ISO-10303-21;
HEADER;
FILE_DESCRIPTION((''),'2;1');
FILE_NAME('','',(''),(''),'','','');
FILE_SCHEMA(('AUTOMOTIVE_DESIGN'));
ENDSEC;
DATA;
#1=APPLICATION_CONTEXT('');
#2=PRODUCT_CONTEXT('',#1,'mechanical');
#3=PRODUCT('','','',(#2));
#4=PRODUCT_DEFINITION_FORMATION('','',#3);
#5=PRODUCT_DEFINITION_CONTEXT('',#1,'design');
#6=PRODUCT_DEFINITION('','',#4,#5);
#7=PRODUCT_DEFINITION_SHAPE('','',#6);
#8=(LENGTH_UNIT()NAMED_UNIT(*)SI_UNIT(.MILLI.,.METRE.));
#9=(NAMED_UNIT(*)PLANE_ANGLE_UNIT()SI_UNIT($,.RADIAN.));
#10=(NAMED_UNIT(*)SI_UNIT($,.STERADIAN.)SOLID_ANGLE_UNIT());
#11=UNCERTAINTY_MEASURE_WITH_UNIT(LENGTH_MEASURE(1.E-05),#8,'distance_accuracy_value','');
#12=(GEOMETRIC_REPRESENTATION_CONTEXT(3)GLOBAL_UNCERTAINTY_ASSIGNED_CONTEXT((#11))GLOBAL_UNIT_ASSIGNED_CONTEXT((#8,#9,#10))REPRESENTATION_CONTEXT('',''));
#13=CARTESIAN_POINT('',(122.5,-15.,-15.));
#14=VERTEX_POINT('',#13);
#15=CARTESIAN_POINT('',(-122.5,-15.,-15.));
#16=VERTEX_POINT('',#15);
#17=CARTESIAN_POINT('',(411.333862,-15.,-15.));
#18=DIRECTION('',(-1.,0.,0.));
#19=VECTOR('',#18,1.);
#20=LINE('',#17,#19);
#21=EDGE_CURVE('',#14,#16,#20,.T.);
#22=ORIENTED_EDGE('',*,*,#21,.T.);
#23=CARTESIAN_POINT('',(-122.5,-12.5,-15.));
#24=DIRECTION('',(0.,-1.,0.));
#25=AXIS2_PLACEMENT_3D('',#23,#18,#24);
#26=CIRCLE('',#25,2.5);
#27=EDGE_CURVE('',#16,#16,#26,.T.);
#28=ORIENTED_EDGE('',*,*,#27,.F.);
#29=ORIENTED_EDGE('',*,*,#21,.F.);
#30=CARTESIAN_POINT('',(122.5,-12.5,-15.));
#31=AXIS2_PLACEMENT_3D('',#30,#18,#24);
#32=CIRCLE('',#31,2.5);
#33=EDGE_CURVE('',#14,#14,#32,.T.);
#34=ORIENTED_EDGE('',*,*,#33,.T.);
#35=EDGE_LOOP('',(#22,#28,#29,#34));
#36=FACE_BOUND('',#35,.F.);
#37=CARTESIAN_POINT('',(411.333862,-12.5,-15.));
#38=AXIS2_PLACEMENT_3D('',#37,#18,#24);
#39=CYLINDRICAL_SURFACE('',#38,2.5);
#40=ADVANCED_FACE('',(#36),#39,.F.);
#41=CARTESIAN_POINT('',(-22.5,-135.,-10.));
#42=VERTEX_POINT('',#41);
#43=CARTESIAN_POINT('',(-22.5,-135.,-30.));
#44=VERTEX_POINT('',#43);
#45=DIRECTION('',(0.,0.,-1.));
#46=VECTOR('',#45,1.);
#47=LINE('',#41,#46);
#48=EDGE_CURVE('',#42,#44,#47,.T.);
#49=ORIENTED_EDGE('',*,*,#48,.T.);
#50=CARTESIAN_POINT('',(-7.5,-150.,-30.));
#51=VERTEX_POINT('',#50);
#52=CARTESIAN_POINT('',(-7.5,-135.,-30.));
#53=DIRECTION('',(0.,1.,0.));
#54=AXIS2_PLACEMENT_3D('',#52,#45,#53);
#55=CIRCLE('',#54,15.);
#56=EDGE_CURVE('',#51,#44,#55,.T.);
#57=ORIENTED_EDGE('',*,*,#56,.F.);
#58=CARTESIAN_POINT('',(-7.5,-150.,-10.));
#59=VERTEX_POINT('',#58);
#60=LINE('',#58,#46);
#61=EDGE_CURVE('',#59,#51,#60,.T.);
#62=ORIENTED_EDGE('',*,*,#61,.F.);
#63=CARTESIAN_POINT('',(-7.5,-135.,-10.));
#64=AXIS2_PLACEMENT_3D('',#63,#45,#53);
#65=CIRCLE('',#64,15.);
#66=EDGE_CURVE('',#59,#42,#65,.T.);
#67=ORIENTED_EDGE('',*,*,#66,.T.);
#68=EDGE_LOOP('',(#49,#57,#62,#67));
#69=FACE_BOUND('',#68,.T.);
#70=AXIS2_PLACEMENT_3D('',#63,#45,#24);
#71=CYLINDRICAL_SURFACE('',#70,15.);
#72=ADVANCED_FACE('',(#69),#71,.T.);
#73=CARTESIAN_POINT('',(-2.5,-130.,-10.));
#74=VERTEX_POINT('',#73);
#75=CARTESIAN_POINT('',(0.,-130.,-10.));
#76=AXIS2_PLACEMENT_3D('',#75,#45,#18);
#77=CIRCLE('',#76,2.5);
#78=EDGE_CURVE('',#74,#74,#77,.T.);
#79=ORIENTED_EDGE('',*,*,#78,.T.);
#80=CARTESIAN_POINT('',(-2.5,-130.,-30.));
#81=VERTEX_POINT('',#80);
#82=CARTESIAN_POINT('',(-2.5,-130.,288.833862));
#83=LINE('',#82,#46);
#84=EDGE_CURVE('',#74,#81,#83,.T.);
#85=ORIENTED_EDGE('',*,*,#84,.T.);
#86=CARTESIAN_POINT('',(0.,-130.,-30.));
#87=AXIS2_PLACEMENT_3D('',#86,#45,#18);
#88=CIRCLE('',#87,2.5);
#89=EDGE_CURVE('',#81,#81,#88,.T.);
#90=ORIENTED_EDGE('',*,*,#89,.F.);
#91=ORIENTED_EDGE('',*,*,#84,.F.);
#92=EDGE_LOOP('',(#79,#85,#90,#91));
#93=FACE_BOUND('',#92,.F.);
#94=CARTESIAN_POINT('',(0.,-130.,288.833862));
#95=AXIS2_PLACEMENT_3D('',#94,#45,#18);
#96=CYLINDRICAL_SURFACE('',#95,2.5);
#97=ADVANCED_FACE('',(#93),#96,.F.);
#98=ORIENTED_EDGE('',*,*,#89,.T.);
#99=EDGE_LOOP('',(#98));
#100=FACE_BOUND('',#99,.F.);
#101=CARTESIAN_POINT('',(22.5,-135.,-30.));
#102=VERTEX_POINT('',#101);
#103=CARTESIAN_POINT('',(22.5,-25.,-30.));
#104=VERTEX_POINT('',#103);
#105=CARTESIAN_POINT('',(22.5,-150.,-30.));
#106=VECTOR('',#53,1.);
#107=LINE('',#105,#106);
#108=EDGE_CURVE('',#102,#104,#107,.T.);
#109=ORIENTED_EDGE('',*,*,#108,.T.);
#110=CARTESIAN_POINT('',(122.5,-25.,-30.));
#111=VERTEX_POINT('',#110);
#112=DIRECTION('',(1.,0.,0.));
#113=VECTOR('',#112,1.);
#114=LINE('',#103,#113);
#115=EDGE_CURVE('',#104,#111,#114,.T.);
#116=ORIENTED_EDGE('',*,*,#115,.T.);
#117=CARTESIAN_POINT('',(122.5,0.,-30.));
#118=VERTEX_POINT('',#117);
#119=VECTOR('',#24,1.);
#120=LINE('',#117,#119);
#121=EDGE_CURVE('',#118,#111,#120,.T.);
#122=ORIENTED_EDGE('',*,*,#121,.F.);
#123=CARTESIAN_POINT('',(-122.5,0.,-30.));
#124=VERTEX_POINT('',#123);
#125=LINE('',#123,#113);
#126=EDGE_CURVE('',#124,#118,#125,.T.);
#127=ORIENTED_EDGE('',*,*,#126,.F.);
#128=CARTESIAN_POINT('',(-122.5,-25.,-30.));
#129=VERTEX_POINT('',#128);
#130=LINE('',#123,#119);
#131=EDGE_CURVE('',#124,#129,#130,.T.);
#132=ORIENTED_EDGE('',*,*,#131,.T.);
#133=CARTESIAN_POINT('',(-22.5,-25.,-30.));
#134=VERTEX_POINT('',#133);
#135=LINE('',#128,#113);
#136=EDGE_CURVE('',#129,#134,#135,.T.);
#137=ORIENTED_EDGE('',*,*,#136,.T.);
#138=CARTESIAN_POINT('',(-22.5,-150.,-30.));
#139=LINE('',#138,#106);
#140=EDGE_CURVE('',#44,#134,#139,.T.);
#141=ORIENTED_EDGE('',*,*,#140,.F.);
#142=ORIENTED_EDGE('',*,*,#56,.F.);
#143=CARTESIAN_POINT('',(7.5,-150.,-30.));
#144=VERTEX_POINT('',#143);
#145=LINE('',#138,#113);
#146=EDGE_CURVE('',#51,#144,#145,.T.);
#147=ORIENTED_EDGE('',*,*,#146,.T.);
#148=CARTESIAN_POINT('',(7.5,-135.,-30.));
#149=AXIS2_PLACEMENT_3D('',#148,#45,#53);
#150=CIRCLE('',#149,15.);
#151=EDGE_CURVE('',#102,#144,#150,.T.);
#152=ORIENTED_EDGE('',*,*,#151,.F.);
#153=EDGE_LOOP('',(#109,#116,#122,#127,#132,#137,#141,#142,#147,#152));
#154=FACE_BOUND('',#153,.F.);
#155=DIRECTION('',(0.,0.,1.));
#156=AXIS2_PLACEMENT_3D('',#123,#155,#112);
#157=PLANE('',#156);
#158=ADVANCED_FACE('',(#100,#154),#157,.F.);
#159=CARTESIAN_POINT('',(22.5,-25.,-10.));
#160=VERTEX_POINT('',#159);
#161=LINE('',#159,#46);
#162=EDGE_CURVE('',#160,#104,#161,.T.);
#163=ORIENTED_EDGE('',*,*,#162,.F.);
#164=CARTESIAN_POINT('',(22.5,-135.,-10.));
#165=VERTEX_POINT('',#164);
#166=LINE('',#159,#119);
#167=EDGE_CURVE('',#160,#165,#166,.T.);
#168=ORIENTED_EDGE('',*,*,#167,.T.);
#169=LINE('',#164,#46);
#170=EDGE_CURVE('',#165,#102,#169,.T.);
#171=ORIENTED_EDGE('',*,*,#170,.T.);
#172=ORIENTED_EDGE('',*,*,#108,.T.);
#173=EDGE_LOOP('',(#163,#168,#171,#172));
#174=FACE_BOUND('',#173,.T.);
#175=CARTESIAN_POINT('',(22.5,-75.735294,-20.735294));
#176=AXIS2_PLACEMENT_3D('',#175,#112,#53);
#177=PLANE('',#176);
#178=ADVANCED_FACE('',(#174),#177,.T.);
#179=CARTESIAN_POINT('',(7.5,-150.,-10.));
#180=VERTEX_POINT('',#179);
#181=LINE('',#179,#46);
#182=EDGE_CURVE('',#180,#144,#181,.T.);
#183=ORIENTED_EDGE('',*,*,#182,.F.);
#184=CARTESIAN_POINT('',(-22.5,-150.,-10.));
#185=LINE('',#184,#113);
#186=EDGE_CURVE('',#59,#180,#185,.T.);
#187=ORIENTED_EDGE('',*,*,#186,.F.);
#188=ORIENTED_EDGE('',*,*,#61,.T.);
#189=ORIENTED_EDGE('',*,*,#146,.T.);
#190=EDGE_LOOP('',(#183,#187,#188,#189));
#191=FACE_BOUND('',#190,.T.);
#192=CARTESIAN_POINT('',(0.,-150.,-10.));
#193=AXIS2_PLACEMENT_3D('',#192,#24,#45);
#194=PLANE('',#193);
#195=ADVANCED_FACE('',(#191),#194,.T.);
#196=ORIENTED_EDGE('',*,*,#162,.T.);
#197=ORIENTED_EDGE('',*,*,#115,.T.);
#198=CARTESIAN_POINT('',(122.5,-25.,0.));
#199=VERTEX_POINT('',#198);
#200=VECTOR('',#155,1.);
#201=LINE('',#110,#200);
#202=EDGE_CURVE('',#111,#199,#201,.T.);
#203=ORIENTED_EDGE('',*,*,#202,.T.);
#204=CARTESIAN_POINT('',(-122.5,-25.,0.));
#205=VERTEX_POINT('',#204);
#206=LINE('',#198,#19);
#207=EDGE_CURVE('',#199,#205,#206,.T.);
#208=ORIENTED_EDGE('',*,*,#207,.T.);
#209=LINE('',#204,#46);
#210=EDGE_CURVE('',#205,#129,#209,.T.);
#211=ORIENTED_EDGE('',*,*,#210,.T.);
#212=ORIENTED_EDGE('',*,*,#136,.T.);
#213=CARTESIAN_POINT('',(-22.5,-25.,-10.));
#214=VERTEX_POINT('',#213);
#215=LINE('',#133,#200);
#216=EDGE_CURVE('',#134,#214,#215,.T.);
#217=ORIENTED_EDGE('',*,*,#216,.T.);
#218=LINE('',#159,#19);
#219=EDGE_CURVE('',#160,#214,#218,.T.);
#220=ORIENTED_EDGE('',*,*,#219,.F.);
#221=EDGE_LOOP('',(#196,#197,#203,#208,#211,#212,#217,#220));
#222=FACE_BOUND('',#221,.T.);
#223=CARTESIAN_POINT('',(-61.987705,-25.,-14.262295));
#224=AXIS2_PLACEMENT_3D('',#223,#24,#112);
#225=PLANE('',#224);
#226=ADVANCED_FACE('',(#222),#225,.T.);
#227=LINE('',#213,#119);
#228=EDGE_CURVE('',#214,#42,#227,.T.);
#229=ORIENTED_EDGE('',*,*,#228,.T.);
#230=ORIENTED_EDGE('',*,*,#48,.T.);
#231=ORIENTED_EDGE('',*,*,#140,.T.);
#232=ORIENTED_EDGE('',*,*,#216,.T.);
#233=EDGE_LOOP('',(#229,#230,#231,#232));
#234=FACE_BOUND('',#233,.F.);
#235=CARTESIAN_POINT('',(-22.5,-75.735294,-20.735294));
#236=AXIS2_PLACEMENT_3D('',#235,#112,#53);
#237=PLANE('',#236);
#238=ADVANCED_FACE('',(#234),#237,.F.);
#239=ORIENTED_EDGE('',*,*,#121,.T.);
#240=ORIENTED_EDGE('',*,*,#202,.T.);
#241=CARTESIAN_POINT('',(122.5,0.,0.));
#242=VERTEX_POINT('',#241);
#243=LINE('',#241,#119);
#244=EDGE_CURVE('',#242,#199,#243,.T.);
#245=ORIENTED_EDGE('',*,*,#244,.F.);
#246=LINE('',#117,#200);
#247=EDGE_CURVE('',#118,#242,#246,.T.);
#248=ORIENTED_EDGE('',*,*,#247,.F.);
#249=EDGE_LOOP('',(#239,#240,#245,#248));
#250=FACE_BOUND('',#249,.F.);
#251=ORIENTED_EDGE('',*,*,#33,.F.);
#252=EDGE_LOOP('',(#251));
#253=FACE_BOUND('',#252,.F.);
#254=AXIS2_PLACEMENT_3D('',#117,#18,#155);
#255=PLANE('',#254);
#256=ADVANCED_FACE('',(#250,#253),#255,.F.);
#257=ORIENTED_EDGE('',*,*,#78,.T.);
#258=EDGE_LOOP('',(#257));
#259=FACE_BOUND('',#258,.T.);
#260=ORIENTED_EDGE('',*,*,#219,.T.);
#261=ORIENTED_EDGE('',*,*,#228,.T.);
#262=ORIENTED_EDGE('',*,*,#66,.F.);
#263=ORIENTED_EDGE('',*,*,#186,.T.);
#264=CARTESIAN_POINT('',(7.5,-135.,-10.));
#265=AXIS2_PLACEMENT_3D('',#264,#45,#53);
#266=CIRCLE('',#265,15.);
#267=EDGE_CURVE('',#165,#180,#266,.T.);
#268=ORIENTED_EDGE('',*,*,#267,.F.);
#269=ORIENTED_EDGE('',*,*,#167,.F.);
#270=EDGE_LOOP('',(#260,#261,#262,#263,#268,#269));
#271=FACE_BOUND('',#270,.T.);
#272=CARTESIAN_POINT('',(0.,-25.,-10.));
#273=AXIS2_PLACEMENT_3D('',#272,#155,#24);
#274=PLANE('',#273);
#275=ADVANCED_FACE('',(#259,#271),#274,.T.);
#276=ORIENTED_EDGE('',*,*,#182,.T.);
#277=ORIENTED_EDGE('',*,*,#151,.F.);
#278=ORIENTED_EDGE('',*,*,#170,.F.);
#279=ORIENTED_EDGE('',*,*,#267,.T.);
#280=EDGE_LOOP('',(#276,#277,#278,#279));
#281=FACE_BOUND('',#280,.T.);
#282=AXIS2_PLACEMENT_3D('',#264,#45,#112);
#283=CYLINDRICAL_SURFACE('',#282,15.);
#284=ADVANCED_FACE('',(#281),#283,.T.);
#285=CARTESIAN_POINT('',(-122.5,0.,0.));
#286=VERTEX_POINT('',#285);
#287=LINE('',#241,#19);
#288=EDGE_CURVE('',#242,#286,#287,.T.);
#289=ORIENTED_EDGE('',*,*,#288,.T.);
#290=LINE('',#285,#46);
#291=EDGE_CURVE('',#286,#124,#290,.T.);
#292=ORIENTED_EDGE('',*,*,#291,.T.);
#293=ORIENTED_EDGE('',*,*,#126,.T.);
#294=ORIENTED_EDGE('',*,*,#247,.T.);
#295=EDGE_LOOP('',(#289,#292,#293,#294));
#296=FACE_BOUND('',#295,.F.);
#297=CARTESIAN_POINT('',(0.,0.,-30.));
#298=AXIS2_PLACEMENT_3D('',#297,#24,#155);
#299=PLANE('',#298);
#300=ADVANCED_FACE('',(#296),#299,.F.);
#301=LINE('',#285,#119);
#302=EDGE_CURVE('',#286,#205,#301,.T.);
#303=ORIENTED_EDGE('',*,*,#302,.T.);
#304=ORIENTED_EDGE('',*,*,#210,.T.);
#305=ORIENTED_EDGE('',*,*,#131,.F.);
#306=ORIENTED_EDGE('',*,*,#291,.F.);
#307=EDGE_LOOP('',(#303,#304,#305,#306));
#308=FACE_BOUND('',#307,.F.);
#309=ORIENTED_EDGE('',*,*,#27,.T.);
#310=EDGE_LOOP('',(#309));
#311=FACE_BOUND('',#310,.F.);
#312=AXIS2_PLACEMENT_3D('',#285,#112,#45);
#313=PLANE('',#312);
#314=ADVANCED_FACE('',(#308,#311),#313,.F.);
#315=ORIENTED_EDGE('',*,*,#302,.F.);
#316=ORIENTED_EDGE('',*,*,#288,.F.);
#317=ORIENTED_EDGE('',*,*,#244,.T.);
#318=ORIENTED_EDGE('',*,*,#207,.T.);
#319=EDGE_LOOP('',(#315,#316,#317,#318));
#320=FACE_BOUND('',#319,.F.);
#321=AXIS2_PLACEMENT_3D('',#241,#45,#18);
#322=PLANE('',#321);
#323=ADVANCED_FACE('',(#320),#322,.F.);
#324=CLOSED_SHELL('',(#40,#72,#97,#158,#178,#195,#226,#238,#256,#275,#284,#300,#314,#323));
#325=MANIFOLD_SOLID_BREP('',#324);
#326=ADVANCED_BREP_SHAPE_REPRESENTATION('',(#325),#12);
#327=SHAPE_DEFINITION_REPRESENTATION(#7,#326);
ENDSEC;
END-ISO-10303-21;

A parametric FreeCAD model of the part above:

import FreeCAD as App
import Part
import Sketcher
from FreeCAD import Vector


def edges_at(feature, points):
    """Names of the edges that pass closest to the given points."""
    edges = feature.Shape.Edges
    near = lambda p: min(range(len(edges)), key=lambda i: edges[i].distToShape(Part.Vertex(*p))[0])
    return sorted({f"Edge{near(p) + 1}" for p in points})


def add_polygon(sketch, points):
    """Adds a closed chain of lines whose ends are joined by coincident constraints."""
    first, n = sketch.GeometryCount, len(points)
    for a, b in zip(points, points[1:] + points[:1]):
        sketch.addGeometry(Part.LineSegment(App.Vector(*a, 0), App.Vector(*b, 0)), False)
    for i in range(n):
        sketch.addConstraint(Sketcher.Constraint("Coincident", first + i, 2, first + (i + 1) % n, 1))

doc = App.newDocument("Part")
params = doc.addObject("Spreadsheet::Sheet", "Params")
for row, (alias, value) in enumerate([
    ("sketch1_width", "45 mm"),
    ("sketch1_width2", "100 mm"),
    ("sketch1_height", "10 mm"),
    ("sketch1_height2", "30 mm"),
    ("pad1_length", "25 mm"),
    ("sketch2_width", "125 mm"),
    ("sketch2_width2", "150 mm"),
    ("sketch2_height", "20 mm"),
    ("pad2_length", "22.5 mm"),
    ("pad2_length2", "22.5 mm"),
    ("fillet_radius", "15 mm"),
    ("sketch3_diameter", "5 mm"),
    ("hole_diameter", "5 mm"),
    ("sketch4_diameter", "5 mm"),
    ("hole2_diameter", "5 mm"),
], start=1):
    params.set(f"A{row}", alias)
    params.set(f"B{row}", "=" + value)
    params.setAlias(f"B{row}", alias)

body = doc.addObject("PartDesign::Body", "Body")

sketch1 = body.newObject("Sketcher::SketchObject", "Sketch")
sketch1.AttachmentSupport = (doc.getObject("XZ_Plane"), [""])
sketch1.MapMode = "FlatFace"
add_polygon(sketch1, [(-22, -20), (22, -20), (22, -30), (122, -30), (122, 0), (-122, 0), (-122, -30), (-22, -30)])
sketch1.addConstraint(Sketcher.Constraint("Horizontal", 0))
sketch1.addConstraint(Sketcher.Constraint("Vertical", 1))
sketch1.addConstraint(Sketcher.Constraint("Horizontal", 2))
sketch1.addConstraint(Sketcher.Constraint("Vertical", 3))
sketch1.addConstraint(Sketcher.Constraint("Horizontal", 4))
sketch1.addConstraint(Sketcher.Constraint("Vertical", 5))
sketch1.addConstraint(Sketcher.Constraint("Horizontal", 6))
sketch1.addConstraint(Sketcher.Constraint("Vertical", 7))
sketch1.addConstraint(Sketcher.Constraint("Symmetric", 3, 2, 4, 2, -1, 1))
sketch1.addConstraint(Sketcher.Constraint("Symmetric", 1, 2, 6, 2, -2))
sketch1.addConstraint(Sketcher.Constraint("DistanceX", 0, 1, 0, 2, 45.0))
sketch1.addConstraint(Sketcher.Constraint("DistanceX", 2, 1, 2, 2, 100.0))
sketch1.addConstraint(Sketcher.Constraint("DistanceY", 1, 2, 1, 1, 10.0))
sketch1.addConstraint(Sketcher.Constraint("DistanceY", 3, 1, 3, 2, 30.0))
sketch1.setExpression("Constraints[18]", "Params.sketch1_width")
sketch1.setExpression("Constraints[19]", "Params.sketch1_width2")
sketch1.setExpression("Constraints[20]", "Params.sketch1_height")
sketch1.setExpression("Constraints[21]", "Params.sketch1_height2")
pad1 = body.newObject("PartDesign::Pad", "Pad")
pad1.Profile = sketch1
pad1.setExpression("Length", "Params.pad1_length")

sketch2 = body.newObject("Sketcher::SketchObject", "Sketch001")
sketch2.AttachmentSupport = (doc.getObject("YZ_Plane"), [""])
sketch2.MapMode = "FlatFace"
add_polygon(sketch2, [(-25, -10), (-150, -10), (-150, -30), (0, -30), (0, -20), (-25, -20)])
sketch2.addConstraint(Sketcher.Constraint("Horizontal", 0))
sketch2.addConstraint(Sketcher.Constraint("Vertical", 1))
sketch2.addConstraint(Sketcher.Constraint("Horizontal", 2))
sketch2.addConstraint(Sketcher.Constraint("Vertical", 3))
sketch2.addConstraint(Sketcher.Constraint("Horizontal", 4))
sketch2.addConstraint(Sketcher.Constraint("Vertical", 5))
sketch2.addConstraint(Sketcher.Constraint("PointOnObject", 2, 2, -2))
sketch2.addConstraint(Sketcher.Constraint("Equal", 3, 5))
sketch2.addConstraint(Sketcher.Constraint("DistanceX", 0, 2, 0, 1, 125.0))
sketch2.addConstraint(Sketcher.Constraint("DistanceX", 2, 1, 2, 2, 150.0))
sketch2.addConstraint(Sketcher.Constraint("DistanceY", 1, 2, 1, 1, 20.0))
sketch2.addConstraint(Sketcher.Constraint("DistanceY", 0, 2, -1, 1, 10.0))
sketch2.setExpression("Constraints[14]", "Params.sketch2_width")
sketch2.setExpression("Constraints[15]", "Params.sketch2_width2")
sketch2.setExpression("Constraints[16]", "Params.sketch2_height")
pad2 = body.newObject("PartDesign::Pad", "Pad001")
pad2.Profile = sketch2
pad2.Type = "TwoLengths"
pad2.setExpression("Length", "Params.pad2_length")
pad2.setExpression("Length2", "Params.pad2_length2")
doc.recompute()

fillet = body.newObject("PartDesign::Fillet", "Fillet")
fillet.Base = (pad2, edges_at(pad2, [(-22.5, -150, -20), (22.5, -150, -20)]))
fillet.setExpression("Radius", "Params.fillet_radius")

sketch3 = body.newObject("Sketcher::SketchObject", "Sketch002")
sketch3.AttachmentSupport = (doc.getObject("XY_Plane"), [""])
sketch3.MapMode = "FlatFace"
sketch3.addGeometry(Part.Circle(Vector(0, -130, 0), Vector(0, 0, 1), 2.5), False)
sketch3.addConstraint(Sketcher.Constraint("PointOnObject", 0, 3, -2))
sketch3.addConstraint(Sketcher.Constraint("Diameter", 0, 5.0))
sketch3.addConstraint(Sketcher.Constraint("DistanceY", 0, 3, -1, 1, 130.0))
sketch3.setExpression("Constraints[1]", "Params.sketch3_diameter")
doc.recompute()
hole = body.newObject("PartDesign::Hole", "Hole")
hole.Profile = sketch3
hole.ThreadType = "None"
hole.setExpression("Diameter", "Params.hole_diameter")
hole.DepthType = "ThroughAll"

sketch4 = body.newObject("Sketcher::SketchObject", "Sketch003")
sketch4.AttachmentSupport = (doc.getObject("YZ_Plane"), [""])
sketch4.MapMode = "FlatFace"
sketch4.AttachmentOffset = App.Placement(Vector(0, 0, 122.5), App.Rotation())
sketch4.addGeometry(Part.Circle(Vector(-12.5, -15, 0), Vector(0, 0, 1), 2.5), False)
sketch4.addConstraint(Sketcher.Constraint("Diameter", 0, 5.0))
sketch4.addConstraint(Sketcher.Constraint("DistanceY", 0, 3, -1, 1, 15.0))
sketch4.addConstraint(Sketcher.Constraint("DistanceX", 0, 3, -1, 1, 12.5))
sketch4.setExpression("Constraints[0]", "Params.sketch4_diameter")
doc.recompute()
hole2 = body.newObject("PartDesign::Hole", "Hole001")
hole2.Profile = sketch4
hole2.ThreadType = "None"
hole2.setExpression("Diameter", "Params.hole2_diameter")
hole2.DepthType = "ThroughAll"

doc.recompute()
